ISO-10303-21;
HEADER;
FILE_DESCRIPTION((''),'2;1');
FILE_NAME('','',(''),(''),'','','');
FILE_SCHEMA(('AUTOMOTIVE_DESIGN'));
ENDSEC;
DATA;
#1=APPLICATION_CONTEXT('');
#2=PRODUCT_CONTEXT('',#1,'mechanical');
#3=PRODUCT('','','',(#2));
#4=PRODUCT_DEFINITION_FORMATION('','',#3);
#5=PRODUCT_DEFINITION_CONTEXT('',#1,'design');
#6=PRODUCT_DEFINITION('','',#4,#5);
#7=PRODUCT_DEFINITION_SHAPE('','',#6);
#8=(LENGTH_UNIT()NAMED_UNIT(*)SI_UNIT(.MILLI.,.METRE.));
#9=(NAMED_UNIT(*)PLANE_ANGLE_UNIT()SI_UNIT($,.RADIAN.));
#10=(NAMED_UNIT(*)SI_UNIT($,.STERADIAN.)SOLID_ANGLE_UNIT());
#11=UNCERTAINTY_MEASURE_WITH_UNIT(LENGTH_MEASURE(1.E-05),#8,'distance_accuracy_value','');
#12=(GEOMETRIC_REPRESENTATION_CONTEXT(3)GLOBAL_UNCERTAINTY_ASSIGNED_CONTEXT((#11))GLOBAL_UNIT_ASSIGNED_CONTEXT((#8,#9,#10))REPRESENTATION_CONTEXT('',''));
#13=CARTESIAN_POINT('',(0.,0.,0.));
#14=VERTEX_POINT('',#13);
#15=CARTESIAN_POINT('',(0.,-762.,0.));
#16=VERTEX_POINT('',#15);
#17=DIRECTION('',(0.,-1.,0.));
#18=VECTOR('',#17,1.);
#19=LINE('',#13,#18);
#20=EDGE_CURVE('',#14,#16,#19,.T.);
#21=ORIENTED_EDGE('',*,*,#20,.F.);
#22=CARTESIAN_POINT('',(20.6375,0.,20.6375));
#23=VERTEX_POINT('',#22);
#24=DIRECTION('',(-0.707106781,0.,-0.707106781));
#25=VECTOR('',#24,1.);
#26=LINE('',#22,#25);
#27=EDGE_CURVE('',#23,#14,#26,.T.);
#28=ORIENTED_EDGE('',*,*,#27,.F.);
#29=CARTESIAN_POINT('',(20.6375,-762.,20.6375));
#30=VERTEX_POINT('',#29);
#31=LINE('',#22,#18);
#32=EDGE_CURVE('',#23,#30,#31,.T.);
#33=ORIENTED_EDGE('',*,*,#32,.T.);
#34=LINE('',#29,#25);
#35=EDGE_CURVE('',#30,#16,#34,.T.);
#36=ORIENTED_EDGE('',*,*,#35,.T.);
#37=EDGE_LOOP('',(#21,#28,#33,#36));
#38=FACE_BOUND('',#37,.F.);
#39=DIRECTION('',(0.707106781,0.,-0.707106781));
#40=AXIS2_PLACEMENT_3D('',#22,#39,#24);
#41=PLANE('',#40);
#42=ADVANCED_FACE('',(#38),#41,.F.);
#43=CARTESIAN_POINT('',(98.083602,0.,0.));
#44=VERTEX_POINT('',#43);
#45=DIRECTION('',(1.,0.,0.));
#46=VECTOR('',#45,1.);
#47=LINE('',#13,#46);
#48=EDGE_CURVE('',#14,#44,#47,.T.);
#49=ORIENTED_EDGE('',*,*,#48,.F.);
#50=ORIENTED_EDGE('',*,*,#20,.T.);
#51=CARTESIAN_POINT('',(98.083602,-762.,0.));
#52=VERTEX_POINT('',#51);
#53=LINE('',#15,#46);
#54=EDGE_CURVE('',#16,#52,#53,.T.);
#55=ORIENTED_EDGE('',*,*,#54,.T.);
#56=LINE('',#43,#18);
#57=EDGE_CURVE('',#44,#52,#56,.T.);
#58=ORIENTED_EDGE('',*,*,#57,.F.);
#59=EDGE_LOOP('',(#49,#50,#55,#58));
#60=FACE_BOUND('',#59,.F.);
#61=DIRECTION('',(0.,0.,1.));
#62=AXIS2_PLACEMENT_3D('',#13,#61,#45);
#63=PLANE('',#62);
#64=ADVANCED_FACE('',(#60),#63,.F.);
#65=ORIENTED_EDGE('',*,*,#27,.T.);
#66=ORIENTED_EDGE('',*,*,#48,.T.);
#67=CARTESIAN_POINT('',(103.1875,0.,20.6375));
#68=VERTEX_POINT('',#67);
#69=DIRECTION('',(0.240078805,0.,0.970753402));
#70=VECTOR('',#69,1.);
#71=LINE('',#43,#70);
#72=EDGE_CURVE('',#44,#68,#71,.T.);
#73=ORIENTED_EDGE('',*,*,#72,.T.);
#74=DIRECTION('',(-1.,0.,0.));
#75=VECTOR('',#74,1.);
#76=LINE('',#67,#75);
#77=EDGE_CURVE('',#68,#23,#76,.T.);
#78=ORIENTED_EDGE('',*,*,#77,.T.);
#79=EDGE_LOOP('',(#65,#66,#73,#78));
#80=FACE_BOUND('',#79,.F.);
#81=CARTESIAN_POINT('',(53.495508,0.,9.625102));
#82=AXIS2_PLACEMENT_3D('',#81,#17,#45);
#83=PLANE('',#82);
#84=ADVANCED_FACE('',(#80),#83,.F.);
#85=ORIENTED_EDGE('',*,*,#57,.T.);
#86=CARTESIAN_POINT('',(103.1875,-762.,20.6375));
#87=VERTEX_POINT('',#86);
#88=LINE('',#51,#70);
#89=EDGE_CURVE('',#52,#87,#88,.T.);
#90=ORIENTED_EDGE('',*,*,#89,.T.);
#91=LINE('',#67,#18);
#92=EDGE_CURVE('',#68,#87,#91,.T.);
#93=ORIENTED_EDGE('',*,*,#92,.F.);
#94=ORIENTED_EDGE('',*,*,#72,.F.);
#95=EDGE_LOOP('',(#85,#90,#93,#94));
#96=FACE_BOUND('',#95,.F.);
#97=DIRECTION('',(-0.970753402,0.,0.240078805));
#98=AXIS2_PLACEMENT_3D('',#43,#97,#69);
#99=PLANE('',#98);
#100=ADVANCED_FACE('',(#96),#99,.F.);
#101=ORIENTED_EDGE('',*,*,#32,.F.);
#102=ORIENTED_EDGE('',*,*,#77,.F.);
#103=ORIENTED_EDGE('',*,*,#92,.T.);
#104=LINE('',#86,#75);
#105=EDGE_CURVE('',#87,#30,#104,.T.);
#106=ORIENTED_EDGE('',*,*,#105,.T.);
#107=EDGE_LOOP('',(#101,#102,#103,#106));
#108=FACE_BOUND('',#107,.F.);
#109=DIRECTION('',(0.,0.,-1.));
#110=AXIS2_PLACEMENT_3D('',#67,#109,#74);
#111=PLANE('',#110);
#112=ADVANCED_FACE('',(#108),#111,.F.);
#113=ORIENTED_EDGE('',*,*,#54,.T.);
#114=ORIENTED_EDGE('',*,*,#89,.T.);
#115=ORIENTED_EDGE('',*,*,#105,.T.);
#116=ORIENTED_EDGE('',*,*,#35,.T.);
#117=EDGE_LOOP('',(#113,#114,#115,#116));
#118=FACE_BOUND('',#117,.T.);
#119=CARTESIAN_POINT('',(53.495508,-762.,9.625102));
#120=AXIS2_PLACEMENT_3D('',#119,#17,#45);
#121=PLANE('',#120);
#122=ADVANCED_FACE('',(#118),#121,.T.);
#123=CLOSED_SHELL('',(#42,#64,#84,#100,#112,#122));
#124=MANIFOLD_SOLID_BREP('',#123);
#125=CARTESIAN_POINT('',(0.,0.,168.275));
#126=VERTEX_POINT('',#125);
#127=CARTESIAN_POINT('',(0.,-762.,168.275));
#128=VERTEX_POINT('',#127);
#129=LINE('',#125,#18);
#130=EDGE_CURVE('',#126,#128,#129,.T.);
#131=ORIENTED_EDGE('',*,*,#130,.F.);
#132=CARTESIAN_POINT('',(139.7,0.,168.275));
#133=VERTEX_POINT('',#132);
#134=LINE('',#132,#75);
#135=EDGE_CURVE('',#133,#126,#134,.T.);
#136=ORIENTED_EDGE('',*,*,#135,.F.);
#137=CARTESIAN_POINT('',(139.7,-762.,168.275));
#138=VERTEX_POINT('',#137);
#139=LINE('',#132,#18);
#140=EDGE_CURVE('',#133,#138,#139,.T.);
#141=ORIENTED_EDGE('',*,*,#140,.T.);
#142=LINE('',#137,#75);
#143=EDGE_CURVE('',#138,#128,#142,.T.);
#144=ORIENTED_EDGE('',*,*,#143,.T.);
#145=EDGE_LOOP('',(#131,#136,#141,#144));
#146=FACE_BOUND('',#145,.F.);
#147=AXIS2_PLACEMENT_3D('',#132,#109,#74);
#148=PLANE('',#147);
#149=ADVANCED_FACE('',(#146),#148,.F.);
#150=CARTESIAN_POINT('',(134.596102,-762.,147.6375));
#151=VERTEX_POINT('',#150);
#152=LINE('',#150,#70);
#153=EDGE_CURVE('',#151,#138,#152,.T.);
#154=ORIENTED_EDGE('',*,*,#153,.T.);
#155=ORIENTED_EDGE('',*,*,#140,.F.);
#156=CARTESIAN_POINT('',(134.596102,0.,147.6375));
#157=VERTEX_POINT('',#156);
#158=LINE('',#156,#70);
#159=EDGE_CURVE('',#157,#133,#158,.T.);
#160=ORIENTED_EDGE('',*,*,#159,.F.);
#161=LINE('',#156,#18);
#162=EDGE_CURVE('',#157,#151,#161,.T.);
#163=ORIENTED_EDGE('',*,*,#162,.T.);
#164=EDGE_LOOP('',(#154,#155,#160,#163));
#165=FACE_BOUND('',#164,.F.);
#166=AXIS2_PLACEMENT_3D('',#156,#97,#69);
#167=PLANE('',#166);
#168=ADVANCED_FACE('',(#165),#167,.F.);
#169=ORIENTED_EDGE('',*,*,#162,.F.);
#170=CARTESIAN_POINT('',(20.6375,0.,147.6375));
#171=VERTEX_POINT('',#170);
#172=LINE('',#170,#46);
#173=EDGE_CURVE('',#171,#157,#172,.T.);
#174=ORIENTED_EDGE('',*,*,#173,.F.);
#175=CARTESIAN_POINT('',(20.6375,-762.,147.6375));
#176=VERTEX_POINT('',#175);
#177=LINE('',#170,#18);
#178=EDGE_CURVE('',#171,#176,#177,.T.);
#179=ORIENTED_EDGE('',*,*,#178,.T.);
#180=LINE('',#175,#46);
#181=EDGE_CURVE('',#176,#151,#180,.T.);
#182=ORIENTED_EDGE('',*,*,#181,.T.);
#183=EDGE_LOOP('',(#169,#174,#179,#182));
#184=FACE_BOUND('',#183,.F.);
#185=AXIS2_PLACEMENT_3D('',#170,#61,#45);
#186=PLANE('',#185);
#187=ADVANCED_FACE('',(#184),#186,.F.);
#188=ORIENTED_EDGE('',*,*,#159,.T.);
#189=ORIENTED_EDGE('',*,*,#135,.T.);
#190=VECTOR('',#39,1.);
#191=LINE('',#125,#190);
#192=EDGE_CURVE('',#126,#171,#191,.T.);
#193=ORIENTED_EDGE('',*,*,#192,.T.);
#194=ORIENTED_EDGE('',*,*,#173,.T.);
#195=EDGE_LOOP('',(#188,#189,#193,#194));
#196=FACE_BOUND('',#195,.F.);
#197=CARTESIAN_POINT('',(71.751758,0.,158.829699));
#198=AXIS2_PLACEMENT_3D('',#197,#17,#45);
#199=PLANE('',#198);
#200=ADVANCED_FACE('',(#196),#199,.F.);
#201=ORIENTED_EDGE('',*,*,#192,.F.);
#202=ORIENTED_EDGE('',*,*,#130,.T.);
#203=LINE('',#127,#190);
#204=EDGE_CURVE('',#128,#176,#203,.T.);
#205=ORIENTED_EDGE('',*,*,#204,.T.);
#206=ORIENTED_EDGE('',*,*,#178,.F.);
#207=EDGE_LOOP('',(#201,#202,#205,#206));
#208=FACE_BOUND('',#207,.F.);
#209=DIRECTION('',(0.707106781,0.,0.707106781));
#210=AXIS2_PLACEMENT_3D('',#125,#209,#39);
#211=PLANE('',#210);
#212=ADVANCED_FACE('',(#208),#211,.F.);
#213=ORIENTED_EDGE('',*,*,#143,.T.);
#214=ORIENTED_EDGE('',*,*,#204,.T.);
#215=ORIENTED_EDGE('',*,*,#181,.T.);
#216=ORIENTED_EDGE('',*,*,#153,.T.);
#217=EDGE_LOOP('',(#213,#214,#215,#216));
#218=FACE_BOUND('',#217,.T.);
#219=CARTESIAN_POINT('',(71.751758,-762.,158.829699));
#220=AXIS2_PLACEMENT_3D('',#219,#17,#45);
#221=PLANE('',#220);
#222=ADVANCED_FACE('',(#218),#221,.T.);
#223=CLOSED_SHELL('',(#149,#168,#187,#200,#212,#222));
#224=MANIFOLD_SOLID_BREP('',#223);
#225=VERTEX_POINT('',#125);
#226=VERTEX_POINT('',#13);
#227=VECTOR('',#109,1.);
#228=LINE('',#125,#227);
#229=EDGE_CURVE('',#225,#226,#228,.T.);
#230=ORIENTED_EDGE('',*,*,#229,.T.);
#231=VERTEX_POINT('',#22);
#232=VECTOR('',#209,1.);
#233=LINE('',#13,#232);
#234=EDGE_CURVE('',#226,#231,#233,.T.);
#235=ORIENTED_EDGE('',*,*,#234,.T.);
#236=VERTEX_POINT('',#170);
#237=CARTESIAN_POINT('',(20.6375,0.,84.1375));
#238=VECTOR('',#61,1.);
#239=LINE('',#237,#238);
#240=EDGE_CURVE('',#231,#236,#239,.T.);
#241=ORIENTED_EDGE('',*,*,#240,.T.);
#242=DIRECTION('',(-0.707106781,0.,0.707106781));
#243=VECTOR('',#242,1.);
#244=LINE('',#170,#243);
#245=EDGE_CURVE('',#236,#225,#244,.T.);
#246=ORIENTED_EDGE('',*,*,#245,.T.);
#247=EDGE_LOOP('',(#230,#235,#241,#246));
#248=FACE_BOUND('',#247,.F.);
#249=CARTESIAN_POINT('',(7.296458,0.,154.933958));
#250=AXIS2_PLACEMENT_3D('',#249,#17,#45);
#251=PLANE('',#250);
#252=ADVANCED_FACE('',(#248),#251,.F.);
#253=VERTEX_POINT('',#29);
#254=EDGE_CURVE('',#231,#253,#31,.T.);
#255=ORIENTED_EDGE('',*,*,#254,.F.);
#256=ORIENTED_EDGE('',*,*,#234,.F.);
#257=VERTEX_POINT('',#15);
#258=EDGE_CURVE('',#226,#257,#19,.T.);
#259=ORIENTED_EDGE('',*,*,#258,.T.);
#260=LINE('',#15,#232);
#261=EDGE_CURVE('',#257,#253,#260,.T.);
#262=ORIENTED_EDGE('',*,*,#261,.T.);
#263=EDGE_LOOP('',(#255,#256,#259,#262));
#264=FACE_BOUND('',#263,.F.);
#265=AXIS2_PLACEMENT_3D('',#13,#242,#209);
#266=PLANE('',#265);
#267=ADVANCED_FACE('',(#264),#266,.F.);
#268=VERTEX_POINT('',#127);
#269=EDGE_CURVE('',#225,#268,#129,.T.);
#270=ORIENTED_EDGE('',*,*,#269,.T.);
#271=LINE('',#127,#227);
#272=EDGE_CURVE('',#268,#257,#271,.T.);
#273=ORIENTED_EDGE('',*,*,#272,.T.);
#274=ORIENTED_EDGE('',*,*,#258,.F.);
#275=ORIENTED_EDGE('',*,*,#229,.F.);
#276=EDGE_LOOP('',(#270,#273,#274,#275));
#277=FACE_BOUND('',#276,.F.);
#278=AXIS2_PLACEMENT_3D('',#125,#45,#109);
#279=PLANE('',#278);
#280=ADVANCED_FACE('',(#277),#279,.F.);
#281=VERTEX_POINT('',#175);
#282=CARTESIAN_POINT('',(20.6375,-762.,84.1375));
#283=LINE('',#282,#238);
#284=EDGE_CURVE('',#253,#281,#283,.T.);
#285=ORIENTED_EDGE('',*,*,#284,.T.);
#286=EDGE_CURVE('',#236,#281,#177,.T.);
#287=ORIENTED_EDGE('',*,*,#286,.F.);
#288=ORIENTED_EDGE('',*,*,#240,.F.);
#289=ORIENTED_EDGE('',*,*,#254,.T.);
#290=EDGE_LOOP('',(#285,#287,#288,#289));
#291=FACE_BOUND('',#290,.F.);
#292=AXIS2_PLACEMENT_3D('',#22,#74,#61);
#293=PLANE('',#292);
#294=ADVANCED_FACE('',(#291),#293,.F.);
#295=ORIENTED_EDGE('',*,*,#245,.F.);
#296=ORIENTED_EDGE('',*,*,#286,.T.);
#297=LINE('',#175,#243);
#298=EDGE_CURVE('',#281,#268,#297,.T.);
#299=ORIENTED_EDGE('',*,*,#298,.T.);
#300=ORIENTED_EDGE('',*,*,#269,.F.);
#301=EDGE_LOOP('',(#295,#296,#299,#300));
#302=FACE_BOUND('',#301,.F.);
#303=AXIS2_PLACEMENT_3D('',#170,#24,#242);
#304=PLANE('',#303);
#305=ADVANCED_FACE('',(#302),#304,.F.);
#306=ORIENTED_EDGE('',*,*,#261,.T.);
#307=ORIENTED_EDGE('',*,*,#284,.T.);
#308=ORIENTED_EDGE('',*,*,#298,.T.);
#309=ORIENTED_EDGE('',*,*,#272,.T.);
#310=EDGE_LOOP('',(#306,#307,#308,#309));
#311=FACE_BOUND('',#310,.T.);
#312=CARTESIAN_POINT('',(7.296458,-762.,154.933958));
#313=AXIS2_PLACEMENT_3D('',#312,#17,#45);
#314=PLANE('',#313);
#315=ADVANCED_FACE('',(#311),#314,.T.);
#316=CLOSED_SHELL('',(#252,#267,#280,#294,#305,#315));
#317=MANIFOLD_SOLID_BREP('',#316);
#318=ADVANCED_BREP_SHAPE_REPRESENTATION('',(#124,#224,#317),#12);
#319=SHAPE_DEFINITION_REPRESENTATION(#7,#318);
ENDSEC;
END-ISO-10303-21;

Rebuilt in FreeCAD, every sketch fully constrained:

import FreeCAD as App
import Part
import Sketcher

V = App.Vector
Q = App.Units.Quantity


def add_polygon(sketch, points):
    """Adds a closed chain of lines whose ends are joined by coincident constraints."""
    first, n = sketch.GeometryCount, len(points)
    for a, b in zip(points, points[1:] + points[:1]):
        sketch.addGeometry(Part.LineSegment(App.Vector(*a, 0), App.Vector(*b, 0)), False)
    for i in range(n):
        sketch.addConstraint(Sketcher.Constraint("Coincident", first + i, 2, first + (i + 1) % n, 1))

doc = App.newDocument("Part")
params = doc.addObject("Spreadsheet::Sheet", "Params")
for row, (alias, value) in enumerate([
    ("sketch1_width", "5.5 in"),
    ("sketch1_width2", "3.25 in"),
    ("pad1_length", "30 in"),
    ("sketch2_height", "5 in"),
    ("sketch2_height2", "6.625 in"),
    ("pad2_length", "30 in"),
], start=1):
    params.set(f"A{row}", alias)
    params.set(f"B{row}", "=" + value)
    params.setAlias(f"B{row}", alias)

body = doc.addObject("PartDesign::Body", "Body")
body.AllowCompound = True

# Sketch on XZ plane
sketch1 = body.newObject("Sketcher::SketchObject", "Sketch")
sketch1.AttachmentSupport = (doc.getObject("XZ_Plane"), [""])
sketch1.MapMode = "FlatFace"
add_polygon(sketch1, [(0, 168), (21, 148), (135, 148), (140, 168)])  # lines 0-3
add_polygon(sketch1, [(21, 21), (0, 0), (98, 0), (103, 21)])  # lines 4-7
sketch1.addConstraint([
    Sketcher.Constraint("Horizontal", 1),
    Sketcher.Constraint("Horizontal", 3),
    Sketcher.Constraint("Horizontal", 5),
    Sketcher.Constraint("Horizontal", 7),
    Sketcher.Constraint("Coincident", 4, 2, -1, 1),
    Sketcher.Constraint("PointOnObject", 3, 2, -2),
    Sketcher.Constraint("Perpendicular", 0, 4),
    Sketcher.Constraint("Parallel", 2, 6),
    Sketcher.Constraint("Vertical", 0, 2, 7, 2),
    Sketcher.Constraint("Equal", 0, 4),
    Sketcher.Constraint("DistanceX", 3, 2, 3, 1, Q("5.5 in")),
    Sketcher.Constraint("DistanceY", 6, 2, 1, 2, Q("5 in")),
    Sketcher.Constraint("DistanceX", 7, 2, 7, 1, Q("3.25 in")),
    Sketcher.Constraint("DistanceX", -1, 1, 0, 2, Q("0.8125 in")),
    Sketcher.Constraint("DistanceX", 1, 1, 1, 2, 113.958602),
])
sketch1.setExpression("Constraints[18]", "Params.sketch1_width")
sketch1.setExpression("Constraints[20]", "Params.sketch1_width2")
pad1 = body.newObject("PartDesign::Pad", "Pad")
pad1.Profile = sketch1
pad1.setExpression("Length", "Params.pad1_length")
body2 = doc.addObject("PartDesign::Body", "Body001")

# Sketch on XZ plane
sketch2 = body2.newObject("Sketcher::SketchObject", "Sketch001")
sketch2.AttachmentSupport = (doc.getObject("XZ_Plane001"), [""])
sketch2.MapMode = "FlatFace"
add_polygon(sketch2, [(0, 168), (0, 0), (21, 21), (21, 148)])  # lines 0-3
sketch2.addConstraint([
    Sketcher.Constraint("Vertical", 0),
    Sketcher.Constraint("Vertical", 2),
    Sketcher.Constraint("Coincident", 0, 2, -1, 1),
    Sketcher.Constraint("Perpendicular", 1, 3),
    Sketcher.Constraint("Equal", 1, 3),
    Sketcher.Constraint("DistanceY", 2, 1, 2, 2, Q("5 in")),
    Sketcher.Constraint("DistanceY", 0, 2, 0, 1, Q("6.625 in")),
])
sketch2.setExpression("Constraints[9]", "Params.sketch2_height")
sketch2.setExpression("Constraints[10]", "Params.sketch2_height2")
pad2 = body2.newObject("PartDesign::Pad", "Pad001")
pad2.Profile = sketch2
pad2.setExpression("Length", "Params.pad2_length")

doc.recompute()
